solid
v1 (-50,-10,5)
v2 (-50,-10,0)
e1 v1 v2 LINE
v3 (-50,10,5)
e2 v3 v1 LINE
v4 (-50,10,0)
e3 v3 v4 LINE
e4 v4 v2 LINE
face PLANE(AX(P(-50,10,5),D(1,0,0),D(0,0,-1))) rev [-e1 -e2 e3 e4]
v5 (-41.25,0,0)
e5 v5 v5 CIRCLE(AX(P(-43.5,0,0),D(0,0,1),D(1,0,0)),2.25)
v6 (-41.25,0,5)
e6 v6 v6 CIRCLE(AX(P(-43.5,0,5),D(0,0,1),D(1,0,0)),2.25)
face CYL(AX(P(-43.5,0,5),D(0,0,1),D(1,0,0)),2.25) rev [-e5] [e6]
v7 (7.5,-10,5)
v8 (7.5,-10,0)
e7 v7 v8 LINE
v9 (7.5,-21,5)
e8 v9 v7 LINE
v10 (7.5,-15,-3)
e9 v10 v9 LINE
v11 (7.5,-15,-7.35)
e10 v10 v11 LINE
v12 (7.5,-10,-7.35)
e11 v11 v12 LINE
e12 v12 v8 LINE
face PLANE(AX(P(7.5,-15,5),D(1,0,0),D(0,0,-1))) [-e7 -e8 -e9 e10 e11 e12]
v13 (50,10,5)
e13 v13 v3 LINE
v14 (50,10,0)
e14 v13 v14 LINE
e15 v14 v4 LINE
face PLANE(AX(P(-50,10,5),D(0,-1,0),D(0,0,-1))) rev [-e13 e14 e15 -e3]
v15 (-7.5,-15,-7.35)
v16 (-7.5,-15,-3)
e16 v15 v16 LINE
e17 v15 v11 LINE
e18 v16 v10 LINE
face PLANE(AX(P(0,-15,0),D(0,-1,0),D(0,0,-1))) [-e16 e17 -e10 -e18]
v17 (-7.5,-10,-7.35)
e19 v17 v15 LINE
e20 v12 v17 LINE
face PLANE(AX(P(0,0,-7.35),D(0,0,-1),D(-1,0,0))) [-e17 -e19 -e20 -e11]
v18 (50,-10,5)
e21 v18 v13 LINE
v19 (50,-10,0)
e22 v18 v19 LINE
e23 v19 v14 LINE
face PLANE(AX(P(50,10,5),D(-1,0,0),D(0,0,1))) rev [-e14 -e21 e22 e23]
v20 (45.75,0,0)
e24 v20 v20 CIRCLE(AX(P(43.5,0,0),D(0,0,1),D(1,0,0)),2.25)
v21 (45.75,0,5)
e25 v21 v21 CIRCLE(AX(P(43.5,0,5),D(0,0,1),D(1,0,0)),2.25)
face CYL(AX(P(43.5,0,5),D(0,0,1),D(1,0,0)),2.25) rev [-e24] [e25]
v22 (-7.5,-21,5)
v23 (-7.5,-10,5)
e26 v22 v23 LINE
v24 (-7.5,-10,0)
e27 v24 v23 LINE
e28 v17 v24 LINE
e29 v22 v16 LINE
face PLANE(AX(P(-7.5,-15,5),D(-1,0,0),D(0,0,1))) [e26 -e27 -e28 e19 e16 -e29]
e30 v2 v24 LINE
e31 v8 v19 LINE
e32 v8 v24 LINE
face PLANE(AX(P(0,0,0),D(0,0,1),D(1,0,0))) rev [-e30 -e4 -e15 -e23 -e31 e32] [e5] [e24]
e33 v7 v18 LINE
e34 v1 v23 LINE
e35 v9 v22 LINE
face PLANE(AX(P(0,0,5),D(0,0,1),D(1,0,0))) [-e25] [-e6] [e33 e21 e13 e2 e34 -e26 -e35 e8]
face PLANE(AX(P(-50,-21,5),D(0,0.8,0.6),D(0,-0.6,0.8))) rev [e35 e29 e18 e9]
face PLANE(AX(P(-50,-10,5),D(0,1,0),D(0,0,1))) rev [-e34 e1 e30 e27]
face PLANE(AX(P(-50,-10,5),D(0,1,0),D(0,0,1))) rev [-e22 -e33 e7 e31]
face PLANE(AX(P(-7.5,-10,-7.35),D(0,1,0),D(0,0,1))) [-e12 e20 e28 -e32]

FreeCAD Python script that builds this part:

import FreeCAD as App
import Part
import Sketcher

V = App.Vector

doc = App.newDocument("Part")
body = doc.addObject("PartDesign::Body", "Body")

sketch1 = body.newObject("Sketcher::SketchObject", "Sketch")
sketch1.AttachmentSupport = (doc.getObject("XY_Plane"), [""])
sketch1.MapMode = "FlatFace"
sketch1.addGeometry([
    Part.LineSegment(V(-50, 10, 0), V(-50, -10, 0)),
    Part.LineSegment(V(-50, -10, 0), V(50, -10, 0)),
    Part.LineSegment(V(50, -10, 0), V(50, 10, 0)),
    Part.LineSegment(V(50, 10, 0), V(-50, 10, 0)),
], False)
sketch1.addConstraint([
    Sketcher.Constraint("Coincident", 0, 2, 1, 1),
    Sketcher.Constraint("Coincident", 1, 2, 2, 1),
    Sketcher.Constraint("Coincident", 2, 2, 3, 1),
    Sketcher.Constraint("Coincident", 3, 2, 0, 1),
    Sketcher.Constraint("Vertical", 0),
    Sketcher.Constraint("Horizontal", 1),
    Sketcher.Constraint("Vertical", 2),
    Sketcher.Constraint("Horizontal", 3),
    Sketcher.Constraint("Symmetric", 0, 2, 2, 2, -1, 1),
    Sketcher.Constraint("DistanceX", 1, 1, 1, 2, 100.0),
    Sketcher.Constraint("DistanceY", 0, 2, 0, 1, 20.0),
])
pad1 = body.newObject("PartDesign::Pad", "Pad")
pad1.Profile = sketch1
pad1.Length = 5

sketch2 = body.newObject("Sketcher::SketchObject", "Sketch001")
sketch2.AttachmentSupport = (doc.getObject("XY_Plane"), [""])
sketch2.MapMode = "FlatFace"
sketch2.AttachmentOffset = App.Placement(V(0, 0, 5), App.Rotation())
sketch2.addGeometry([
    Part.Circle(V(-43.5, 0, 0), V(0, 0, 1), 2.2),
    Part.Circle(V(43.5, 0, 0), V(0, 0, 1), 2.2),
], False)
sketch2.addConstraint([
    Sketcher.Constraint("Equal", 0, 1),
    Sketcher.Constraint("Symmetric", 0, 3, 1, 3, -1, 1),
    Sketcher.Constraint("PointOnObject", 0, 3, -1),
    Sketcher.Constraint("Diameter", 0, 4.5),
    Sketcher.Constraint("DistanceX", 0, 3, 1, 3, 87.0),
])
doc.recompute()
hole = body.newObject("PartDesign::Hole", "Hole")
hole.Profile = sketch2
hole.ThreadType = "None"
hole.Diameter = 4.5
hole.DepthType = "ThroughAll"

sketch3 = body.newObject("Sketcher::SketchObject", "Sketch002")
sketch3.AttachmentSupport = (doc.getObject("XZ_Plane"), [""])
sketch3.MapMode = "FlatFace"
sketch3.AttachmentOffset = App.Placement(V(0, 0, 10), App.Rotation())
sketch3.addGeometry([
    Part.LineSegment(V(-8, 0, 0), V(-8, 5, 0)),
    Part.LineSegment(V(-8, 5, 0), V(8, 5, 0)),
    Part.LineSegment(V(8, 5, 0), V(8, 0, 0)),
    Part.LineSegment(V(8, 0, 0), V(-8, 0, 0)),
], False)
sketch3.addConstraint([
    Sketcher.Constraint("Coincident", 0, 2, 1, 1),
    Sketcher.Constraint("Coincident", 1, 2, 2, 1),
    Sketcher.Constraint("Coincident", 2, 2, 3, 1),
    Sketcher.Constraint("Coincident", 3, 2, 0, 1),
    Sketcher.Constraint("Vertical", 0),
    Sketcher.Constraint("Horizontal", 1),
    Sketcher.Constraint("Vertical", 2),
    Sketcher.Constraint("Horizontal", 3),
    Sketcher.Constraint("Symmetric", 2, 2, 3, 2, -1, 1),
    Sketcher.Constraint("DistanceX", 1, 1, 1, 2, 15.0),
    Sketcher.Constraint("DistanceY", 0, 1, 0, 2, 5.0),
])
pad2 = body.newObject("PartDesign::Pad", "Pad001")
pad2.Profile = sketch3
pad2.Length = 5

sketch4 = body.newObject("Sketcher::SketchObject", "Sketch003")
sketch4.AttachmentSupport = (doc.getObject("XY_Plane"), [""])
sketch4.MapMode = "FlatFace"
sketch4.addGeometry([
    Part.LineSegment(V(-8, -10, 0), V(-8, -15, 0)),
    Part.LineSegment(V(-8, -15, 0), V(8, -15, 0)),
    Part.LineSegment(V(8, -15, 0), V(8, -10, 0)),
    Part.LineSegment(V(8, -10, 0), V(-8, -10, 0)),
], False)
sketch4.addConstraint([
    Sketcher.Constraint("Coincident", 0, 2, 1, 1),
    Sketcher.Constraint("Coincident", 1, 2, 2, 1),
    Sketcher.Constraint("Coincident", 2, 2, 3, 1),
    Sketcher.Constraint("Coincident", 3, 2, 0, 1),
    Sketcher.Constraint("Vertical", 0),
    Sketcher.Constraint("Horizontal", 1),
    Sketcher.Constraint("Vertical", 2),
    Sketcher.Constraint("Horizontal", 3),
    Sketcher.Constraint("DistanceX", 1, 1, 1, 2, 15.0),
    Sketcher.Constraint("DistanceY", 0, 2, 0, 1, 5.0),
    Sketcher.Constraint("DistanceY", 0, 2, -1, 1, 15.0),
    Sketcher.Constraint("DistanceX", 0, 2, -1, 1, 7.5),
])
pad3 = body.newObject("PartDesign::Pad", "Pad002")
pad3.Profile = sketch4
pad3.Length = 7.35
pad3.Reversed = True

sketch5 = body.newObject("Sketcher::SketchObject", "Sketch004")
sketch5.AttachmentSupport = (doc.getObject("XZ_Plane"), [""])
sketch5.MapMode = "FlatFace"
sketch5.AttachmentOffset = App.Placement(V(0, 0, 15), App.Rotation())
sketch5.addGeometry([
    Part.LineSegment(V(-8, 5, 0), V(-8, -3, 0)),
    Part.LineSegment(V(-8, -3, 0), V(8, -3, 0)),
    Part.LineSegment(V(8, -3, 0), V(8, 5, 0)),
    Part.LineSegment(V(8, 5, 0), V(-8, 5, 0)),
], False)
sketch5.addConstraint([
    Sketcher.Constraint("Coincident", 0, 2, 1, 1),
    Sketcher.Constraint("Coincident", 1, 2, 2, 1),
    Sketcher.Constraint("Coincident", 2, 2, 3, 1),
    Sketcher.Constraint("Coincident", 3, 2, 0, 1),
    Sketcher.Constraint("Vertical", 0),
    Sketcher.Constraint("Horizontal", 1),
    Sketcher.Constraint("Vertical", 2),
    Sketcher.Constraint("Horizontal", 3),
    Sketcher.Constraint("DistanceX", 1, 1, 1, 2, 15.0),
    Sketcher.Constraint("DistanceY", 0, 2, 0, 1, 8.0),
    Sketcher.Constraint("DistanceY", 0, 2, -1, 1, 3.0),
    Sketcher.Constraint("DistanceX", 0, 2, -1, 1, 7.5),
])
pad4 = body.newObject("PartDesign::Pad", "Pad003")
pad4.Profile = sketch5
pad4.Length = 6

sketch6 = body.newObject("Sketcher::SketchObject", "Sketch005")
sketch6.AttachmentSupport = (doc.getObject("YZ_Plane"), [""])
sketch6.MapMode = "FlatFace"
sketch6.AttachmentOffset = App.Placement(V(0, 0, 7.5), App.Rotation())
sketch6.addGeometry([
    Part.LineSegment(V(-21, 5, 0), V(-21, -3, 0)),
    Part.LineSegment(V(-21, -3, 0), V(-15, -3, 0)),
    Part.LineSegment(V(-15, -3, 0), V(-21, 5, 0)),
], False)
sketch6.addConstraint([
    Sketcher.Constraint("Coincident", 0, 2, 1, 1),
    Sketcher.Constraint("Coincident", 1, 2, 2, 1),
    Sketcher.Constraint("Coincident", 2, 2, 0, 1),
    Sketcher.Constraint("Vertical", 0),
    Sketcher.Constraint("Horizontal", 1),
    Sketcher.Constraint("DistanceX", 1, 1, 1, 2, 6.0),
    Sketcher.Constraint("DistanceY", 0, 2, 0, 1, 8.0),
    Sketcher.Constraint("DistanceX", 0, 2, -1, 1, 21.0),
    Sketcher.Constraint("DistanceY", 0, 2, -1, 1, 3.0),
])
pocket1 = body.newObject("PartDesign::Pocket", "Pocket")
pocket1.Profile = sketch6
pocket1.Type = "ThroughAll"

doc.recompute()
